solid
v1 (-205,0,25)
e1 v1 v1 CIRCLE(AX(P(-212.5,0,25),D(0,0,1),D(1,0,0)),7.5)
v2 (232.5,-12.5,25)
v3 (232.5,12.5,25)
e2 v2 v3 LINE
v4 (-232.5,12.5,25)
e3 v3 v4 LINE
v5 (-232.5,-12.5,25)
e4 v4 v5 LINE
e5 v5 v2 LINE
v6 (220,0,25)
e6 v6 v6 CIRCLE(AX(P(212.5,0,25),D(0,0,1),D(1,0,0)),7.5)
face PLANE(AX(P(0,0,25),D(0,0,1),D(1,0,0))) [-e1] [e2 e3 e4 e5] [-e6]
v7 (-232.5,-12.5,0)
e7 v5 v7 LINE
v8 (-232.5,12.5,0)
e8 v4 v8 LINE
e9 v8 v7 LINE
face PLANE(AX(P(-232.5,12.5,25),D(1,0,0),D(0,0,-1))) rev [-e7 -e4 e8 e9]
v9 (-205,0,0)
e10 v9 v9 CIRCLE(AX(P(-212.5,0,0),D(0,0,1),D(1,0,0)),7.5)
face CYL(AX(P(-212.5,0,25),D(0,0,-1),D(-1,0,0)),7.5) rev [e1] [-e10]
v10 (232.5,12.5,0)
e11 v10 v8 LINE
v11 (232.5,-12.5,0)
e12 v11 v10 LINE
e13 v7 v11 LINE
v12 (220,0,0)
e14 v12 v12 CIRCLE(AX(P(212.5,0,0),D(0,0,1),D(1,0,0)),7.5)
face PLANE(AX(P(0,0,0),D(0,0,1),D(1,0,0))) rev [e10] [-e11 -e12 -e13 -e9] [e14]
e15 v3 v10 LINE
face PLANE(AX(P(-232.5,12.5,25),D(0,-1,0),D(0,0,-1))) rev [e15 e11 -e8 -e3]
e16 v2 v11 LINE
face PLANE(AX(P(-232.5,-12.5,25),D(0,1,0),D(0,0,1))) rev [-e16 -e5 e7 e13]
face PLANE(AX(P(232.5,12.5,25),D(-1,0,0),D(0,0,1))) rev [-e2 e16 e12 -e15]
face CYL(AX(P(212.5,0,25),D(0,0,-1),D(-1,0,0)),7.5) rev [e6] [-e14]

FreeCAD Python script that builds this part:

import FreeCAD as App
import Part
import Sketcher
from FreeCAD import Vector

doc = App.newDocument("Part")
params = doc.addObject("Spreadsheet::Sheet", "Params")
for row, (alias, value) in enumerate([
    ("sketch1_diameter", "15 mm"),
    ("sketch1_width", "465 mm"),
    ("sketch1_height", "25 mm"),
    ("pad1_length", "25 mm"),
], start=1):
    params.set(f"A{row}", alias)
    params.set(f"B{row}", "=" + value)
    params.setAlias(f"B{row}", alias)

body = doc.addObject("PartDesign::Body", "Body")

sketch1 = body.newObject("Sketcher::SketchObject", "Sketch")
sketch1.AttachmentSupport = (doc.getObject("XY_Plane"), [""])
sketch1.MapMode = "FlatFace"
sketch1.addGeometry([
    Part.LineSegment(Vector(-232, 12, 0), Vector(-232, -12, 0)),
    Part.LineSegment(Vector(-232, -12, 0), Vector(232, -12, 0)),
    Part.LineSegment(Vector(232, -12, 0), Vector(232, 12, 0)),
    Part.LineSegment(Vector(232, 12, 0), Vector(-232, 12, 0)),
    Part.Circle(Vector(-212, 0, 0), Vector(0, 0, 1), 8),
    Part.Circle(Vector(212, 0, 0), Vector(0, 0, 1), 8),
], False)
sketch1.addConstraint([
    Sketcher.Constraint("Coincident", 0, 2, 1, 1),
    Sketcher.Constraint("Coincident", 1, 2, 2, 1),
    Sketcher.Constraint("Coincident", 2, 2, 3, 1),
    Sketcher.Constraint("Coincident", 3, 2, 0, 1),
    Sketcher.Constraint("Vertical", 0),
    Sketcher.Constraint("Horizontal", 1),
    Sketcher.Constraint("Vertical", 2),
    Sketcher.Constraint("Horizontal", 3),
    Sketcher.Constraint("Equal", 4, 5),
    Sketcher.Constraint("Symmetric", 4, 3, 5, 3, -1, 1),
    Sketcher.Constraint("Symmetric", 0, 2, 2, 2, -1, 1),
    Sketcher.Constraint("PointOnObject", 4, 3, -1),
    Sketcher.Constraint("Diameter", 4, 15.0),
    Sketcher.Constraint("DistanceX", 1, 1, 1, 2, 465.0),
    Sketcher.Constraint("DistanceY", 0, 2, 0, 1, 25.0),
    Sketcher.Constraint("DistanceX", 4, 3, 5, 3, 425.0),
])
sketch1.setExpression("Constraints[12]", "Params.sketch1_diameter")
sketch1.setExpression("Constraints[13]", "Params.sketch1_width")
sketch1.setExpression("Constraints[14]", "Params.sketch1_height")
pad1 = body.newObject("PartDesign::Pad", "Pad")
pad1.Profile = sketch1
pad1.setExpression("Length", "Params.pad1_length")

doc.recompute()
